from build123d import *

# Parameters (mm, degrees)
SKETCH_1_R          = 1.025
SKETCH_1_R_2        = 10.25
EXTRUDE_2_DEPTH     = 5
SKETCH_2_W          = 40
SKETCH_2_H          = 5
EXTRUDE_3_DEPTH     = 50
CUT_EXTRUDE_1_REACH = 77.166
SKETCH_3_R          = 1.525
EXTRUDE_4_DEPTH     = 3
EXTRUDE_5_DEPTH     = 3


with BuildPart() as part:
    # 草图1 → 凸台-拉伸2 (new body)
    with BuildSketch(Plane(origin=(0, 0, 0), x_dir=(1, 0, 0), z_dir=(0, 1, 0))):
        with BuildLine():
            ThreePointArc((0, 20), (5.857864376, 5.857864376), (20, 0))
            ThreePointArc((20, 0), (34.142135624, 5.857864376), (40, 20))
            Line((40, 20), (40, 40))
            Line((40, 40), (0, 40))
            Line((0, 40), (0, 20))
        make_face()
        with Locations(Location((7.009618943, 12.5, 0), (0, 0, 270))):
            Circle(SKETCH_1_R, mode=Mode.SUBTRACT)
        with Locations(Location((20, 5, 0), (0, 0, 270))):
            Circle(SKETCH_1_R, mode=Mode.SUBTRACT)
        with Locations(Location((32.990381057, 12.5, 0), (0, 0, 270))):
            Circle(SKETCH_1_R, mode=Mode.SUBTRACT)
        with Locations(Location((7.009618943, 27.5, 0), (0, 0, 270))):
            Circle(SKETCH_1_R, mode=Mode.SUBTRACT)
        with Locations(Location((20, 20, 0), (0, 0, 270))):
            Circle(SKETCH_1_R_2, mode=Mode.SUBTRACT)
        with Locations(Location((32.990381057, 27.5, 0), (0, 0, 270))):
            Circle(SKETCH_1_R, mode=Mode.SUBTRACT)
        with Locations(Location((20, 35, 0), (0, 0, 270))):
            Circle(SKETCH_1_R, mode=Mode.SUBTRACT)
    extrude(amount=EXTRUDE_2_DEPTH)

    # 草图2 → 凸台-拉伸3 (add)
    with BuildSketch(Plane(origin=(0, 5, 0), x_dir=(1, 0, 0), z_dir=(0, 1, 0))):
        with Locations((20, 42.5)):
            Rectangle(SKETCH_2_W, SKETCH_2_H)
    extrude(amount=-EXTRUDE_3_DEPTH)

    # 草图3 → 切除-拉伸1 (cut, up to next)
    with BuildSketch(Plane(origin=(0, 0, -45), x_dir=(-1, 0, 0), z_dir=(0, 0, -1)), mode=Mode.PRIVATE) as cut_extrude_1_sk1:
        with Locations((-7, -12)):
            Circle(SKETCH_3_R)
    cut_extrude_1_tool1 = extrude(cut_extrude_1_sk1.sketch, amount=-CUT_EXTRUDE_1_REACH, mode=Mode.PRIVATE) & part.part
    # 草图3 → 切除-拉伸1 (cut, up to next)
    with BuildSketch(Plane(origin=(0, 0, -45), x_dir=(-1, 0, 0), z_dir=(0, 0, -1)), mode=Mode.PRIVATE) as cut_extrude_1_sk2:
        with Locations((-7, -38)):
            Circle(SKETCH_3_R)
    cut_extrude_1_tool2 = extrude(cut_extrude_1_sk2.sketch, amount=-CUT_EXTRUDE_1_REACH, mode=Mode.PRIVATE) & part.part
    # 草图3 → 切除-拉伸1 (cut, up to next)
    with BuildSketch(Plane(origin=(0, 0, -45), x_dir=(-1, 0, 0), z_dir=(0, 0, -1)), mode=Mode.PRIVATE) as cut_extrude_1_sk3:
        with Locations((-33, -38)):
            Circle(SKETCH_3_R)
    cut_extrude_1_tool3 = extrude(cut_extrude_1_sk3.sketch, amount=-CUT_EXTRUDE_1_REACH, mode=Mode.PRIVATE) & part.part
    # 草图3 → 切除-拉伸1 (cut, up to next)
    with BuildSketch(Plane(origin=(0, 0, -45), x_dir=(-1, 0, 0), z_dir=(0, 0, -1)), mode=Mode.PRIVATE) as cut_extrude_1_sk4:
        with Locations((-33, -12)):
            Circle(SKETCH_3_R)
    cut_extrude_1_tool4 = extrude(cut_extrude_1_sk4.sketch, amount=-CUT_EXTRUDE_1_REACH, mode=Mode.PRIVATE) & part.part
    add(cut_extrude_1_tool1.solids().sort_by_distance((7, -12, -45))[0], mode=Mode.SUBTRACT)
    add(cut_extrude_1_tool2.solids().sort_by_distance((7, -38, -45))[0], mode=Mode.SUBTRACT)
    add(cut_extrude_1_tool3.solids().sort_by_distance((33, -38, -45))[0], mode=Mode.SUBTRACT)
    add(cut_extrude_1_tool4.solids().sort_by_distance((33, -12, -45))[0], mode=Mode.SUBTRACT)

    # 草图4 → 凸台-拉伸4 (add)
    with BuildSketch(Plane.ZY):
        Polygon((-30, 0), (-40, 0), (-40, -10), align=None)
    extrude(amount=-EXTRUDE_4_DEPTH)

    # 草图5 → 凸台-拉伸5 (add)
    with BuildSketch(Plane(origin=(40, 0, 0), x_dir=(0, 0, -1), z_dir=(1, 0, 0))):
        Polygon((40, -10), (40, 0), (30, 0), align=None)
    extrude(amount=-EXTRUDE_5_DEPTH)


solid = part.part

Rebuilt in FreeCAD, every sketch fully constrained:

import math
import FreeCAD as App
import Part
import Sketcher

V = App.Vector


def add_polygon(sketch, points):
    """Adds a closed chain of lines whose ends are joined by coincident constraints."""
    first, n = sketch.GeometryCount, len(points)
    for a, b in zip(points, points[1:] + points[:1]):
        sketch.addGeometry(Part.LineSegment(App.Vector(*a, 0), App.Vector(*b, 0)), False)
    for i in range(n):
        sketch.addConstraint(Sketcher.Constraint("Coincident", first + i, 2, first + (i + 1) % n, 1))

doc = App.newDocument("Part")
body = doc.addObject("PartDesign::Body", "Body")

# Sketch on XZ plane
sketch1 = doc.addObject("Sketcher::SketchObject", "Sketch")
body.addObject(sketch1)
sketch1.AttachmentSupport = (doc.XZ_Plane, [""])
sketch1.MapMode = "FlatFace"
sketch1.addGeometry(Part.ArcOfCircle(Part.Circle(V(20, -20, 0), V(0, 0, 1), 20), math.radians(90), math.radians(180)), False)
sketch1.addGeometry(Part.ArcOfCircle(Part.Circle(V(20, -20, 0), V(0, 0, 1), 20), math.radians(0), math.radians(90)), False)
sketch1.addGeometry(Part.LineSegment(V(40, -20, 0), V(40, -40, 0)), False)
sketch1.addGeometry(Part.LineSegment(V(40, -40, 0), V(0, -40, 0)), False)
sketch1.addGeometry(Part.LineSegment(V(0, -40, 0), V(0, -20, 0)), False)
sketch1.addGeometry(Part.Circle(V(7.009619, -12.5, 0), V(0, 0, 1), 1.025), False)
sketch1.addGeometry(Part.Circle(V(20, -5, 0), V(0, 0, 1), 1.025), False)
sketch1.addGeometry(Part.Circle(V(32.990381, -12.5, 0), V(0, 0, 1), 1.025), False)
sketch1.addGeometry(Part.Circle(V(7.009619, -27.5, 0), V(0, 0, 1), 1.025), False)
sketch1.addGeometry(Part.Circle(V(20, -20, 0), V(0, 0, 1), 10.25), False)
sketch1.addGeometry(Part.Circle(V(32.990381, -27.5, 0), V(0, 0, 1), 1.025), False)
sketch1.addGeometry(Part.Circle(V(20, -35, 0), V(0, 0, 1), 1.025), False)
sketch1.addConstraint(Sketcher.Constraint("Tangent", 0, 1, 1, 2))
sketch1.addConstraint(Sketcher.Constraint("Tangent", 1, 1, 2, 1))
sketch1.addConstraint(Sketcher.Constraint("Coincident", 2, 2, 3, 1))
sketch1.addConstraint(Sketcher.Constraint("Coincident", 3, 2, 4, 1))
sketch1.addConstraint(Sketcher.Constraint("Tangent", 4, 2, 0, 2))
sketch1.addConstraint(Sketcher.Constraint("Vertical", 2))
sketch1.addConstraint(Sketcher.Constraint("Horizontal", 3))
sketch1.addConstraint(Sketcher.Constraint("Vertical", 4))
sketch1.addConstraint(Sketcher.Constraint("Coincident", 9, 3, 0, 3))
sketch1.addConstraint(Sketcher.Constraint("Equal", 0, 1))
sketch1.addConstraint(Sketcher.Constraint("Equal", 5, 6))
sketch1.addConstraint(Sketcher.Constraint("Equal", 6, 7))
sketch1.addConstraint(Sketcher.Constraint("Equal", 7, 8))
sketch1.addConstraint(Sketcher.Constraint("Equal", 8, 10))
sketch1.addConstraint(Sketcher.Constraint("Equal", 10, 11))
sketch1.addConstraint(Sketcher.Constraint("PointOnObject", 0, 1, -1))
sketch1.addConstraint(Sketcher.Constraint("PointOnObject", 3, 2, -2))
sketch1.addConstraint(Sketcher.Constraint("Horizontal", 5, 3, 7, 3))
sketch1.addConstraint(Sketcher.Constraint("Horizontal", 8, 3, 10, 3))
sketch1.addConstraint(Sketcher.Constraint("Vertical", 1, 3, 6, 3))
sketch1.addConstraint(Sketcher.Constraint("Vertical", 5, 3, 8, 3))
sketch1.addConstraint(Sketcher.Constraint("Vertical", 7, 3, 10, 3))
sketch1.addConstraint(Sketcher.Constraint("Vertical", 9, 3, 11, 3))
sketch1.addConstraint(Sketcher.Constraint("Vertical", 11, 3, 0, 1))
sketch1.addConstraint(Sketcher.Constraint("Radius", 0, 20.0))
sketch1.addConstraint(Sketcher.Constraint("Diameter", 9, 20.5))
sketch1.addConstraint(Sketcher.Constraint("Diameter", 5, 2.05))
sketch1.addConstraint(Sketcher.Constraint("DistanceY", 2, 2, 2, 1, 20.0))
sketch1.addConstraint(Sketcher.Constraint("DistanceY", 6, 3, -1, 1, 5.0))
sketch1.addConstraint(Sketcher.Constraint("DistanceY", 11, 3, -1, 1, 35.0))
sketch1.addConstraint(Sketcher.Constraint("DistanceY", 8, 3, 5, 3, 15.0))
sketch1.addConstraint(Sketcher.Constraint("DistanceY", 5, 3, -1, 1, 12.5))
sketch1.addConstraint(Sketcher.Constraint("DistanceX", -1, 1, 5, 3, 7.009619))
sketch1.addConstraint(Sketcher.Constraint("DistanceX", -1, 1, 7, 3, 32.990381))
pad1 = doc.addObject("PartDesign::Pad", "Pad")
body.addObject(pad1)
pad1.Profile = sketch1
pad1.Length = 5
pad1.Reversed = True

# Sketch on XZ plane
sketch2 = doc.addObject("Sketcher::SketchObject", "Sketch001")
body.addObject(sketch2)
sketch2.AttachmentSupport = (doc.XZ_Plane, [""])
sketch2.MapMode = "FlatFace"
sketch2.AttachmentOffset = App.Placement(V(0, 0, -5), App.Rotation())
add_polygon(sketch2, [(0, -45), (0, -40), (40, -40), (40, -45)])  # lines 0-3
sketch2.addConstraint(Sketcher.Constraint("Vertical", 0))
sketch2.addConstraint(Sketcher.Constraint("Horizontal", 1))
sketch2.addConstraint(Sketcher.Constraint("Vertical", 2))
sketch2.addConstraint(Sketcher.Constraint("Horizontal", 3))
sketch2.addConstraint(Sketcher.Constraint("PointOnObject", 0, 2, -2))
sketch2.addConstraint(Sketcher.Constraint("DistanceX", 1, 1, 1, 2, 40.0))
sketch2.addConstraint(Sketcher.Constraint("DistanceY", 0, 1, 0, 2, 5.0))
sketch2.addConstraint(Sketcher.Constraint("DistanceY", 0, 2, -1, 1, 40.0))
pad2 = doc.addObject("PartDesign::Pad", "Pad001")
body.addObject(pad2)
pad2.Profile = sketch2
pad2.Length = 50

# Sketch on XY plane
sketch3 = doc.addObject("Sketcher::SketchObject", "Sketch002")
body.addObject(sketch3)
sketch3.AttachmentSupport = (doc.XY_Plane, [""])
sketch3.MapMode = "FlatFace"
sketch3.AttachmentOffset = App.Placement(V(0, 0, -45), App.Rotation())
sketch3.addGeometry(Part.Circle(V(7, -12, 0), V(0, 0, 1), 1.525), False)
sketch3.addConstraint(Sketcher.Constraint("Diameter", 0, 3.05))
sketch3.addConstraint(Sketcher.Constraint("DistanceX", -1, 1, 0, 3, 7.0))
sketch3.addConstraint(Sketcher.Constraint("DistanceY", 0, 3, -1, 1, 12.0))
pocket1 = doc.addObject("PartDesign::Pocket", "Pocket")
body.addObject(pocket1)
pocket1.Profile = sketch3
pocket1.Type = "UpToFirst"
pocket1.Reversed = True

# Sketch on XY plane
sketch4 = doc.addObject("Sketcher::SketchObject", "Sketch003")
body.addObject(sketch4)
sketch4.AttachmentSupport = (doc.XY_Plane, [""])
sketch4.MapMode = "FlatFace"
sketch4.AttachmentOffset = App.Placement(V(0, 0, -45), App.Rotation())
sketch4.addGeometry(Part.Circle(V(7, -38, 0), V(0, 0, 1), 1.525), False)
sketch4.addConstraint(Sketcher.Constraint("Diameter", 0, 3.05))
sketch4.addConstraint(Sketcher.Constraint("DistanceX", -1, 1, 0, 3, 7.0))
sketch4.addConstraint(Sketcher.Constraint("DistanceY", 0, 3, -1, 1, 38.0))
pocket2 = doc.addObject("PartDesign::Pocket", "Pocket001")
body.addObject(pocket2)
pocket2.Profile = sketch4
pocket2.Type = "UpToFirst"
pocket2.Reversed = True

# Sketch on XY plane
sketch5 = doc.addObject("Sketcher::SketchObject", "Sketch004")
body.addObject(sketch5)
sketch5.AttachmentSupport = (doc.XY_Plane, [""])
sketch5.MapMode = "FlatFace"
sketch5.AttachmentOffset = App.Placement(V(0, 0, -45), App.Rotation())
sketch5.addGeometry(Part.Circle(V(33, -38, 0), V(0, 0, 1), 1.525), False)
sketch5.addConstraint(Sketcher.Constraint("Diameter", 0, 3.05))
sketch5.addConstraint(Sketcher.Constraint("DistanceX", -1, 1, 0, 3, 33.0))
sketch5.addConstraint(Sketcher.Constraint("DistanceY", 0, 3, -1, 1, 38.0))
pocket3 = doc.addObject("PartDesign::Pocket", "Pocket002")
body.addObject(pocket3)
pocket3.Profile = sketch5
pocket3.Type = "UpToFirst"
pocket3.Reversed = True

# Sketch on XY plane
sketch6 = doc.addObject("Sketcher::SketchObject", "Sketch005")
body.addObject(sketch6)
sketch6.AttachmentSupport = (doc.XY_Plane, [""])
sketch6.MapMode = "FlatFace"
sketch6.AttachmentOffset = App.Placement(V(0, 0, -45), App.Rotation())
sketch6.addGeometry(Part.Circle(V(33, -12, 0), V(0, 0, 1), 1.525), False)
sketch6.addConstraint(Sketcher.Constraint("Diameter", 0, 3.05))
sketch6.addConstraint(Sketcher.Constraint("DistanceX", -1, 1, 0, 3, 33.0))
sketch6.addConstraint(Sketcher.Constraint("DistanceY", 0, 3, -1, 1, 12.0))
pocket4 = doc.addObject("PartDesign::Pocket", "Pocket003")
body.addObject(pocket4)
pocket4.Profile = sketch6
pocket4.Type = "UpToFirst"
pocket4.Reversed = True

# Sketch on YZ plane
sketch7 = doc.addObject("Sketcher::SketchObject", "Sketch006")
body.addObject(sketch7)
sketch7.AttachmentSupport = (doc.YZ_Plane, [""])
sketch7.MapMode = "FlatFace"
add_polygon(sketch7, [(0, -30), (0, -40), (-10, -40)])  # lines 0-2
sketch7.addConstraint(Sketcher.Constraint("Vertical", 0))
sketch7.addConstraint(Sketcher.Constraint("Horizontal", 1))
sketch7.addConstraint(Sketcher.Constraint("PointOnObject", 0, 2, -2))
sketch7.addConstraint(Sketcher.Constraint("Equal", 1, 0))
sketch7.addConstraint(Sketcher.Constraint("DistanceX", 1, 2, 1, 1, 10.0))
sketch7.addConstraint(Sketcher.Constraint("DistanceY", 0, 2, -1, 1, 40.0))
pad3 = doc.addObject("PartDesign::Pad", "Pad002")
body.addObject(pad3)
pad3.Profile = sketch7
pad3.Length = 3

# Sketch on YZ plane
sketch8 = doc.addObject("Sketcher::SketchObject", "Sketch007")
body.addObject(sketch8)
sketch8.AttachmentSupport = (doc.YZ_Plane, [""])
sketch8.MapMode = "FlatFace"
sketch8.AttachmentOffset = App.Placement(V(0, 0, 40), App.Rotation())
add_polygon(sketch8, [(-10, -40), (0, -40), (0, -30)])  # lines 0-2
sketch8.addConstraint(Sketcher.Constraint("Horizontal", 0))
sketch8.addConstraint(Sketcher.Constraint("Vertical", 1))
sketch8.addConstraint(Sketcher.Constraint("PointOnObject", 0, 2, -2))
sketch8.addConstraint(Sketcher.Constraint("Equal", 0, 1))
sketch8.addConstraint(Sketcher.Constraint("DistanceX", 0, 1, 0, 2, 10.0))
sketch8.addConstraint(Sketcher.Constraint("DistanceY", 0, 2, -1, 1, 40.0))
pad4 = doc.addObject("PartDesign::Pad", "Pad003")
body.addObject(pad4)
pad4.Profile = sketch8
pad4.Length = 3
pad4.Reversed = True

doc.recompute()
